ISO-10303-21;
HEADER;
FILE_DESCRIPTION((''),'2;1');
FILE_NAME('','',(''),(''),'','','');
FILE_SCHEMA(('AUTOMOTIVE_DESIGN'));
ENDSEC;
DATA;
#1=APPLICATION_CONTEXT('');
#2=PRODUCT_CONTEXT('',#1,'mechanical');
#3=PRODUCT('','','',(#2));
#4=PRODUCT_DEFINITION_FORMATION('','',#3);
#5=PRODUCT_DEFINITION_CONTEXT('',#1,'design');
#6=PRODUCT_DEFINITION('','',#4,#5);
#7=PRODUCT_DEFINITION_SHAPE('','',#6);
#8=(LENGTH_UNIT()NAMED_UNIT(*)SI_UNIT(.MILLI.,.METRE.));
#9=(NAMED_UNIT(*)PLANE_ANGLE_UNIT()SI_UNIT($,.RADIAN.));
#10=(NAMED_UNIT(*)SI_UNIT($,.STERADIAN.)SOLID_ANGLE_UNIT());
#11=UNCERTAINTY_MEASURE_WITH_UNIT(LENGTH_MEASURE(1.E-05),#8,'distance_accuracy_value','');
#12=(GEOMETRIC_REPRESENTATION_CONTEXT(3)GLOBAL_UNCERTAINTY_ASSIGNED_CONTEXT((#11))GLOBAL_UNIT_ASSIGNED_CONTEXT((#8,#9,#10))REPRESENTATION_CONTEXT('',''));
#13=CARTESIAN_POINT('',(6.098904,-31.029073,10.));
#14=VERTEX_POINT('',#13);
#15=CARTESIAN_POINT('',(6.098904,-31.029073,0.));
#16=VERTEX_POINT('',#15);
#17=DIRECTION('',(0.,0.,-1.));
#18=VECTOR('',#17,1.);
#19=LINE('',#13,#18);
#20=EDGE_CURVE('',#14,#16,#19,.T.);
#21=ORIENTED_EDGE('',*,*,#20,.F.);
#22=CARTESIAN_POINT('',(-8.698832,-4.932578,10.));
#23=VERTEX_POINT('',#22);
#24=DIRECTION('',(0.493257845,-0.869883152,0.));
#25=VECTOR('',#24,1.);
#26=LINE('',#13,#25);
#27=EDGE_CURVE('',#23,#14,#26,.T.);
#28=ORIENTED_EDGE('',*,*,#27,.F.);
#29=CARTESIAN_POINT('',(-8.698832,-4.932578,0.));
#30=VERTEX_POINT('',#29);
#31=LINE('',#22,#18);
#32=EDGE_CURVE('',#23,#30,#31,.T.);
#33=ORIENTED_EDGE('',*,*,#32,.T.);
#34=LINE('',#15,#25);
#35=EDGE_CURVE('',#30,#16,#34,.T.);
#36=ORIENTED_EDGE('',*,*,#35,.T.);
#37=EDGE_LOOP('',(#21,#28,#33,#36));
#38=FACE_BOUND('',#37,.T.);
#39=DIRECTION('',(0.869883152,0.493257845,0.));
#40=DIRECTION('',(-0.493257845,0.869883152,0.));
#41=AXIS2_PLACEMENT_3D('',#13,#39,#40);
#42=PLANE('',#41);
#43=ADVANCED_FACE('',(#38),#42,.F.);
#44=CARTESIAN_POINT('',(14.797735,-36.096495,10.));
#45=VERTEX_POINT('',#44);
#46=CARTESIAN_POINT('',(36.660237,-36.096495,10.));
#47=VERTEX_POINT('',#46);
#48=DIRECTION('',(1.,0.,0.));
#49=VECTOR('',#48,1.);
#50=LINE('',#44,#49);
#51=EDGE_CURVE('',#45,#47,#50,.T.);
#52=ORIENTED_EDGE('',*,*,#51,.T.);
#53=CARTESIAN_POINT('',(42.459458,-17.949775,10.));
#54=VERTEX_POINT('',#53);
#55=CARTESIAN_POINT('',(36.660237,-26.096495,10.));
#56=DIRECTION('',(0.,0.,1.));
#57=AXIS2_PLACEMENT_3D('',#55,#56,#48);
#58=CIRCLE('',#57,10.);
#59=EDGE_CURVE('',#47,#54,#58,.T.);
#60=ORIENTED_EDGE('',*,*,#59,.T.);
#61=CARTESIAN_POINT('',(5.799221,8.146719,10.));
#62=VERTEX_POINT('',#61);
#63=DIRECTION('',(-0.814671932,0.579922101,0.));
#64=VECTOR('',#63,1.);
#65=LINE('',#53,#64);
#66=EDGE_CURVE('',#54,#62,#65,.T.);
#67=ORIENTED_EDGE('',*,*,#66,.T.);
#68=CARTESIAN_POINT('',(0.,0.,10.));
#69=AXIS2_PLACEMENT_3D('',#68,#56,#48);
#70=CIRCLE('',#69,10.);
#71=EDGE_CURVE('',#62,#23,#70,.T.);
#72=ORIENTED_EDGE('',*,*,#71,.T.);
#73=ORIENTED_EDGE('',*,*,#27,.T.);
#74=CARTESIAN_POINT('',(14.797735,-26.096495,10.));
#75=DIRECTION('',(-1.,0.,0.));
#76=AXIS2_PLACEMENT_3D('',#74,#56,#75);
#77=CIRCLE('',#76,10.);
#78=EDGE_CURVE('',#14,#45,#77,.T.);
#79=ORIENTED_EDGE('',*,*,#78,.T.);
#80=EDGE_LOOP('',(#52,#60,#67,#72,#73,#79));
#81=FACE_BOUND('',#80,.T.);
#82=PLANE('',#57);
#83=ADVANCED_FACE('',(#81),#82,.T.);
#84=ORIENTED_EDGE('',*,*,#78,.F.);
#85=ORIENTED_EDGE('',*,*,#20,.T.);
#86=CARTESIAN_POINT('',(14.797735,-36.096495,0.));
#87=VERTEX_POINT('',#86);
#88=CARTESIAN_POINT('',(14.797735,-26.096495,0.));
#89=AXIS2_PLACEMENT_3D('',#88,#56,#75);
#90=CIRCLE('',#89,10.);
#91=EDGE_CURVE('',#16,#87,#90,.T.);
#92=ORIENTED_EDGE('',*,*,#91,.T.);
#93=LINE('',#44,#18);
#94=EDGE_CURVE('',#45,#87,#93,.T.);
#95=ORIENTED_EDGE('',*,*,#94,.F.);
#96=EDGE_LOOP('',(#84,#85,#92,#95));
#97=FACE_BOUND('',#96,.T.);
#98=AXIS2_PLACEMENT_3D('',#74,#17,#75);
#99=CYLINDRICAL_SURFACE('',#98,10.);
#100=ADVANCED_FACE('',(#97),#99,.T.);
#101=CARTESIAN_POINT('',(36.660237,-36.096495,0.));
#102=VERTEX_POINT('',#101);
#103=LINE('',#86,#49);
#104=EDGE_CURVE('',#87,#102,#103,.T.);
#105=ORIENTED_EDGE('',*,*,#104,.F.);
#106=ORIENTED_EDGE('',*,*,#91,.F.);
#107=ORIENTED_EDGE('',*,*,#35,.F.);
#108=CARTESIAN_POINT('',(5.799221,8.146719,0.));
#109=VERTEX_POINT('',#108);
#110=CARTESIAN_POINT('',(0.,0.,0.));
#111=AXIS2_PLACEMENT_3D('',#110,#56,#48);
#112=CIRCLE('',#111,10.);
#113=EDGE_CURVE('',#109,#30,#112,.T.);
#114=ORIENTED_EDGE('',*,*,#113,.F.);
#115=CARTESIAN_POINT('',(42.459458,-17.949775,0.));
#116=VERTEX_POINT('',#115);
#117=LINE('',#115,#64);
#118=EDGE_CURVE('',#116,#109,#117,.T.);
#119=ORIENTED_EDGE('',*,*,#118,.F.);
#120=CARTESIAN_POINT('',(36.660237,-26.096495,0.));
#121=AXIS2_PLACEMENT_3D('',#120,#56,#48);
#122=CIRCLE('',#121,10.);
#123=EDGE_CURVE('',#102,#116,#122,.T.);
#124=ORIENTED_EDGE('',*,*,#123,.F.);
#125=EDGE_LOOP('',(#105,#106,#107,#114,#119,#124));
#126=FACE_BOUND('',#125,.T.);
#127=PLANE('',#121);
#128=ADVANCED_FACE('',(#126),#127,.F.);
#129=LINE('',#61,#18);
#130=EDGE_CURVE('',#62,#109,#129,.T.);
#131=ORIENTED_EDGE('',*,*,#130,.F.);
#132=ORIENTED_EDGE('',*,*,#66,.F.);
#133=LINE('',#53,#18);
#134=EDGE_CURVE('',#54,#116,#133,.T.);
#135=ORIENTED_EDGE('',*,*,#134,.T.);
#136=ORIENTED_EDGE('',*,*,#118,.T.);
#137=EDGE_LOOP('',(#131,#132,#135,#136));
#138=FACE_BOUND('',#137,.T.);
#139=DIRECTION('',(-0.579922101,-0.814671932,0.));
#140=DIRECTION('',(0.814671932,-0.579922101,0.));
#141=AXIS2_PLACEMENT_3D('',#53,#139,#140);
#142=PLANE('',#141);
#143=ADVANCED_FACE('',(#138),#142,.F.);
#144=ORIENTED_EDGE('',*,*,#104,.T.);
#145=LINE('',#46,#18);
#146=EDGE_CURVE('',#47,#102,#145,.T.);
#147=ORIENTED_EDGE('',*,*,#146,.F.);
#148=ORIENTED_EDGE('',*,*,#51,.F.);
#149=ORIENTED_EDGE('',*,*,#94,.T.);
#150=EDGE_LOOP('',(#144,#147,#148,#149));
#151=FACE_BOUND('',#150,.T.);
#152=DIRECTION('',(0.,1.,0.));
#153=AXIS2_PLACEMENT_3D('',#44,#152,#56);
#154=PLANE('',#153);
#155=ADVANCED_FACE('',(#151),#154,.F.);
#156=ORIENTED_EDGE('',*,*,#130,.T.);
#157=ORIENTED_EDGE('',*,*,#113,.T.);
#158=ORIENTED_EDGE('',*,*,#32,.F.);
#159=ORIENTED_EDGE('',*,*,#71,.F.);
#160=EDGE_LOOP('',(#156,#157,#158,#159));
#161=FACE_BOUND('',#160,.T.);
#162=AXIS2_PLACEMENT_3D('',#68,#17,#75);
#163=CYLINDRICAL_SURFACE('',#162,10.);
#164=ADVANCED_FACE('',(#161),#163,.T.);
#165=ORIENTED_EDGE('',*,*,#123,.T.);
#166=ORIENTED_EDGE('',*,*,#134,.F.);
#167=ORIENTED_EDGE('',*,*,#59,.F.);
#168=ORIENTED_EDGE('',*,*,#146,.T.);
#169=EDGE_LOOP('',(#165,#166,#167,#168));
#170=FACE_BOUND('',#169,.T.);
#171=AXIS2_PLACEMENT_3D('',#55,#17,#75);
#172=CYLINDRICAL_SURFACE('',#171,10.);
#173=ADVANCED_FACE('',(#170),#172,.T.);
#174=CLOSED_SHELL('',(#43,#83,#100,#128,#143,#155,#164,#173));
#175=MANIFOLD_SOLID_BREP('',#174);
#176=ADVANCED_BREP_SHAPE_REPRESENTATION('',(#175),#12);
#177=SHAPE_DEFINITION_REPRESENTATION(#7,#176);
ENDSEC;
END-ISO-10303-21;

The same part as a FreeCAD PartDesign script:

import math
import FreeCAD as App
import Part
import Sketcher
from FreeCAD import Vector
Q = App.Units.Quantity

doc = App.newDocument("Part")
body = doc.addObject("PartDesign::Body", "Body")

# Sketch on XY plane
sketch1 = body.newObject("Sketcher::SketchObject", "Sketch")
sketch1.AttachmentSupport = (doc.getObject("XY_Plane"), [""])
sketch1.MapMode = "FlatFace"
sketch1.addGeometry([
    Part.LineSegment(Vector(14.797735, -36.096495, 0), Vector(36.660237, -36.096495, 0)),  # 0
    Part.ArcOfCircle(Part.Circle(Vector(36.660237, -26.096495, 0), Vector(0, 0, 1), 10), math.radians(-90), math.radians(54.554936)),  # 1
    Part.LineSegment(Vector(42.459458, -17.949775, 0), Vector(5.799221, 8.146719, 0)),  # 2
    Part.ArcOfCircle(Part.Circle(Vector(0, 0, 0), Vector(0, 0, 1), 10), math.radians(54.554936), math.radians(209.554936)),  # 3
    Part.LineSegment(Vector(-8.698832, -4.932578, 0), Vector(6.098904, -31.029073, 0)),  # 4
    Part.ArcOfCircle(Part.Circle(Vector(14.797735, -26.096495, 0), Vector(0, 0, 1), 10), math.radians(-150.445064), math.radians(-90)),  # 5
], False)
sketch1.addConstraint([
    Sketcher.Constraint("Tangent", 0, 2, 1, 1),
    Sketcher.Constraint("Tangent", 1, 2, 2, 1),
    Sketcher.Constraint("Tangent", 2, 2, 3, 1),
    Sketcher.Constraint("Tangent", 3, 2, 4, 1),
    Sketcher.Constraint("Tangent", 4, 2, 5, 1),
    Sketcher.Constraint("Tangent", 5, 2, 0, 1),
    Sketcher.Constraint("Horizontal", 0),
    Sketcher.Constraint("Coincident", 3, 3, -1, 1),
    Sketcher.Constraint("Equal", 1, 3),
    Sketcher.Constraint("Equal", 3, 5),
    Sketcher.Constraint("Radius", 1, Q("10 mm")),
    Sketcher.Constraint("Distance", 2, Q("45 mm")),
    Sketcher.Constraint("Distance", 4, Q("30 mm")),
    Sketcher.Constraint("DistanceX", 0, 1, 0, 2, Q("21.862502 mm")),
])
pad1 = body.newObject("PartDesign::Pad", "Pad")
pad1.Profile = sketch1
pad1.Length = 10

doc.recompute()
